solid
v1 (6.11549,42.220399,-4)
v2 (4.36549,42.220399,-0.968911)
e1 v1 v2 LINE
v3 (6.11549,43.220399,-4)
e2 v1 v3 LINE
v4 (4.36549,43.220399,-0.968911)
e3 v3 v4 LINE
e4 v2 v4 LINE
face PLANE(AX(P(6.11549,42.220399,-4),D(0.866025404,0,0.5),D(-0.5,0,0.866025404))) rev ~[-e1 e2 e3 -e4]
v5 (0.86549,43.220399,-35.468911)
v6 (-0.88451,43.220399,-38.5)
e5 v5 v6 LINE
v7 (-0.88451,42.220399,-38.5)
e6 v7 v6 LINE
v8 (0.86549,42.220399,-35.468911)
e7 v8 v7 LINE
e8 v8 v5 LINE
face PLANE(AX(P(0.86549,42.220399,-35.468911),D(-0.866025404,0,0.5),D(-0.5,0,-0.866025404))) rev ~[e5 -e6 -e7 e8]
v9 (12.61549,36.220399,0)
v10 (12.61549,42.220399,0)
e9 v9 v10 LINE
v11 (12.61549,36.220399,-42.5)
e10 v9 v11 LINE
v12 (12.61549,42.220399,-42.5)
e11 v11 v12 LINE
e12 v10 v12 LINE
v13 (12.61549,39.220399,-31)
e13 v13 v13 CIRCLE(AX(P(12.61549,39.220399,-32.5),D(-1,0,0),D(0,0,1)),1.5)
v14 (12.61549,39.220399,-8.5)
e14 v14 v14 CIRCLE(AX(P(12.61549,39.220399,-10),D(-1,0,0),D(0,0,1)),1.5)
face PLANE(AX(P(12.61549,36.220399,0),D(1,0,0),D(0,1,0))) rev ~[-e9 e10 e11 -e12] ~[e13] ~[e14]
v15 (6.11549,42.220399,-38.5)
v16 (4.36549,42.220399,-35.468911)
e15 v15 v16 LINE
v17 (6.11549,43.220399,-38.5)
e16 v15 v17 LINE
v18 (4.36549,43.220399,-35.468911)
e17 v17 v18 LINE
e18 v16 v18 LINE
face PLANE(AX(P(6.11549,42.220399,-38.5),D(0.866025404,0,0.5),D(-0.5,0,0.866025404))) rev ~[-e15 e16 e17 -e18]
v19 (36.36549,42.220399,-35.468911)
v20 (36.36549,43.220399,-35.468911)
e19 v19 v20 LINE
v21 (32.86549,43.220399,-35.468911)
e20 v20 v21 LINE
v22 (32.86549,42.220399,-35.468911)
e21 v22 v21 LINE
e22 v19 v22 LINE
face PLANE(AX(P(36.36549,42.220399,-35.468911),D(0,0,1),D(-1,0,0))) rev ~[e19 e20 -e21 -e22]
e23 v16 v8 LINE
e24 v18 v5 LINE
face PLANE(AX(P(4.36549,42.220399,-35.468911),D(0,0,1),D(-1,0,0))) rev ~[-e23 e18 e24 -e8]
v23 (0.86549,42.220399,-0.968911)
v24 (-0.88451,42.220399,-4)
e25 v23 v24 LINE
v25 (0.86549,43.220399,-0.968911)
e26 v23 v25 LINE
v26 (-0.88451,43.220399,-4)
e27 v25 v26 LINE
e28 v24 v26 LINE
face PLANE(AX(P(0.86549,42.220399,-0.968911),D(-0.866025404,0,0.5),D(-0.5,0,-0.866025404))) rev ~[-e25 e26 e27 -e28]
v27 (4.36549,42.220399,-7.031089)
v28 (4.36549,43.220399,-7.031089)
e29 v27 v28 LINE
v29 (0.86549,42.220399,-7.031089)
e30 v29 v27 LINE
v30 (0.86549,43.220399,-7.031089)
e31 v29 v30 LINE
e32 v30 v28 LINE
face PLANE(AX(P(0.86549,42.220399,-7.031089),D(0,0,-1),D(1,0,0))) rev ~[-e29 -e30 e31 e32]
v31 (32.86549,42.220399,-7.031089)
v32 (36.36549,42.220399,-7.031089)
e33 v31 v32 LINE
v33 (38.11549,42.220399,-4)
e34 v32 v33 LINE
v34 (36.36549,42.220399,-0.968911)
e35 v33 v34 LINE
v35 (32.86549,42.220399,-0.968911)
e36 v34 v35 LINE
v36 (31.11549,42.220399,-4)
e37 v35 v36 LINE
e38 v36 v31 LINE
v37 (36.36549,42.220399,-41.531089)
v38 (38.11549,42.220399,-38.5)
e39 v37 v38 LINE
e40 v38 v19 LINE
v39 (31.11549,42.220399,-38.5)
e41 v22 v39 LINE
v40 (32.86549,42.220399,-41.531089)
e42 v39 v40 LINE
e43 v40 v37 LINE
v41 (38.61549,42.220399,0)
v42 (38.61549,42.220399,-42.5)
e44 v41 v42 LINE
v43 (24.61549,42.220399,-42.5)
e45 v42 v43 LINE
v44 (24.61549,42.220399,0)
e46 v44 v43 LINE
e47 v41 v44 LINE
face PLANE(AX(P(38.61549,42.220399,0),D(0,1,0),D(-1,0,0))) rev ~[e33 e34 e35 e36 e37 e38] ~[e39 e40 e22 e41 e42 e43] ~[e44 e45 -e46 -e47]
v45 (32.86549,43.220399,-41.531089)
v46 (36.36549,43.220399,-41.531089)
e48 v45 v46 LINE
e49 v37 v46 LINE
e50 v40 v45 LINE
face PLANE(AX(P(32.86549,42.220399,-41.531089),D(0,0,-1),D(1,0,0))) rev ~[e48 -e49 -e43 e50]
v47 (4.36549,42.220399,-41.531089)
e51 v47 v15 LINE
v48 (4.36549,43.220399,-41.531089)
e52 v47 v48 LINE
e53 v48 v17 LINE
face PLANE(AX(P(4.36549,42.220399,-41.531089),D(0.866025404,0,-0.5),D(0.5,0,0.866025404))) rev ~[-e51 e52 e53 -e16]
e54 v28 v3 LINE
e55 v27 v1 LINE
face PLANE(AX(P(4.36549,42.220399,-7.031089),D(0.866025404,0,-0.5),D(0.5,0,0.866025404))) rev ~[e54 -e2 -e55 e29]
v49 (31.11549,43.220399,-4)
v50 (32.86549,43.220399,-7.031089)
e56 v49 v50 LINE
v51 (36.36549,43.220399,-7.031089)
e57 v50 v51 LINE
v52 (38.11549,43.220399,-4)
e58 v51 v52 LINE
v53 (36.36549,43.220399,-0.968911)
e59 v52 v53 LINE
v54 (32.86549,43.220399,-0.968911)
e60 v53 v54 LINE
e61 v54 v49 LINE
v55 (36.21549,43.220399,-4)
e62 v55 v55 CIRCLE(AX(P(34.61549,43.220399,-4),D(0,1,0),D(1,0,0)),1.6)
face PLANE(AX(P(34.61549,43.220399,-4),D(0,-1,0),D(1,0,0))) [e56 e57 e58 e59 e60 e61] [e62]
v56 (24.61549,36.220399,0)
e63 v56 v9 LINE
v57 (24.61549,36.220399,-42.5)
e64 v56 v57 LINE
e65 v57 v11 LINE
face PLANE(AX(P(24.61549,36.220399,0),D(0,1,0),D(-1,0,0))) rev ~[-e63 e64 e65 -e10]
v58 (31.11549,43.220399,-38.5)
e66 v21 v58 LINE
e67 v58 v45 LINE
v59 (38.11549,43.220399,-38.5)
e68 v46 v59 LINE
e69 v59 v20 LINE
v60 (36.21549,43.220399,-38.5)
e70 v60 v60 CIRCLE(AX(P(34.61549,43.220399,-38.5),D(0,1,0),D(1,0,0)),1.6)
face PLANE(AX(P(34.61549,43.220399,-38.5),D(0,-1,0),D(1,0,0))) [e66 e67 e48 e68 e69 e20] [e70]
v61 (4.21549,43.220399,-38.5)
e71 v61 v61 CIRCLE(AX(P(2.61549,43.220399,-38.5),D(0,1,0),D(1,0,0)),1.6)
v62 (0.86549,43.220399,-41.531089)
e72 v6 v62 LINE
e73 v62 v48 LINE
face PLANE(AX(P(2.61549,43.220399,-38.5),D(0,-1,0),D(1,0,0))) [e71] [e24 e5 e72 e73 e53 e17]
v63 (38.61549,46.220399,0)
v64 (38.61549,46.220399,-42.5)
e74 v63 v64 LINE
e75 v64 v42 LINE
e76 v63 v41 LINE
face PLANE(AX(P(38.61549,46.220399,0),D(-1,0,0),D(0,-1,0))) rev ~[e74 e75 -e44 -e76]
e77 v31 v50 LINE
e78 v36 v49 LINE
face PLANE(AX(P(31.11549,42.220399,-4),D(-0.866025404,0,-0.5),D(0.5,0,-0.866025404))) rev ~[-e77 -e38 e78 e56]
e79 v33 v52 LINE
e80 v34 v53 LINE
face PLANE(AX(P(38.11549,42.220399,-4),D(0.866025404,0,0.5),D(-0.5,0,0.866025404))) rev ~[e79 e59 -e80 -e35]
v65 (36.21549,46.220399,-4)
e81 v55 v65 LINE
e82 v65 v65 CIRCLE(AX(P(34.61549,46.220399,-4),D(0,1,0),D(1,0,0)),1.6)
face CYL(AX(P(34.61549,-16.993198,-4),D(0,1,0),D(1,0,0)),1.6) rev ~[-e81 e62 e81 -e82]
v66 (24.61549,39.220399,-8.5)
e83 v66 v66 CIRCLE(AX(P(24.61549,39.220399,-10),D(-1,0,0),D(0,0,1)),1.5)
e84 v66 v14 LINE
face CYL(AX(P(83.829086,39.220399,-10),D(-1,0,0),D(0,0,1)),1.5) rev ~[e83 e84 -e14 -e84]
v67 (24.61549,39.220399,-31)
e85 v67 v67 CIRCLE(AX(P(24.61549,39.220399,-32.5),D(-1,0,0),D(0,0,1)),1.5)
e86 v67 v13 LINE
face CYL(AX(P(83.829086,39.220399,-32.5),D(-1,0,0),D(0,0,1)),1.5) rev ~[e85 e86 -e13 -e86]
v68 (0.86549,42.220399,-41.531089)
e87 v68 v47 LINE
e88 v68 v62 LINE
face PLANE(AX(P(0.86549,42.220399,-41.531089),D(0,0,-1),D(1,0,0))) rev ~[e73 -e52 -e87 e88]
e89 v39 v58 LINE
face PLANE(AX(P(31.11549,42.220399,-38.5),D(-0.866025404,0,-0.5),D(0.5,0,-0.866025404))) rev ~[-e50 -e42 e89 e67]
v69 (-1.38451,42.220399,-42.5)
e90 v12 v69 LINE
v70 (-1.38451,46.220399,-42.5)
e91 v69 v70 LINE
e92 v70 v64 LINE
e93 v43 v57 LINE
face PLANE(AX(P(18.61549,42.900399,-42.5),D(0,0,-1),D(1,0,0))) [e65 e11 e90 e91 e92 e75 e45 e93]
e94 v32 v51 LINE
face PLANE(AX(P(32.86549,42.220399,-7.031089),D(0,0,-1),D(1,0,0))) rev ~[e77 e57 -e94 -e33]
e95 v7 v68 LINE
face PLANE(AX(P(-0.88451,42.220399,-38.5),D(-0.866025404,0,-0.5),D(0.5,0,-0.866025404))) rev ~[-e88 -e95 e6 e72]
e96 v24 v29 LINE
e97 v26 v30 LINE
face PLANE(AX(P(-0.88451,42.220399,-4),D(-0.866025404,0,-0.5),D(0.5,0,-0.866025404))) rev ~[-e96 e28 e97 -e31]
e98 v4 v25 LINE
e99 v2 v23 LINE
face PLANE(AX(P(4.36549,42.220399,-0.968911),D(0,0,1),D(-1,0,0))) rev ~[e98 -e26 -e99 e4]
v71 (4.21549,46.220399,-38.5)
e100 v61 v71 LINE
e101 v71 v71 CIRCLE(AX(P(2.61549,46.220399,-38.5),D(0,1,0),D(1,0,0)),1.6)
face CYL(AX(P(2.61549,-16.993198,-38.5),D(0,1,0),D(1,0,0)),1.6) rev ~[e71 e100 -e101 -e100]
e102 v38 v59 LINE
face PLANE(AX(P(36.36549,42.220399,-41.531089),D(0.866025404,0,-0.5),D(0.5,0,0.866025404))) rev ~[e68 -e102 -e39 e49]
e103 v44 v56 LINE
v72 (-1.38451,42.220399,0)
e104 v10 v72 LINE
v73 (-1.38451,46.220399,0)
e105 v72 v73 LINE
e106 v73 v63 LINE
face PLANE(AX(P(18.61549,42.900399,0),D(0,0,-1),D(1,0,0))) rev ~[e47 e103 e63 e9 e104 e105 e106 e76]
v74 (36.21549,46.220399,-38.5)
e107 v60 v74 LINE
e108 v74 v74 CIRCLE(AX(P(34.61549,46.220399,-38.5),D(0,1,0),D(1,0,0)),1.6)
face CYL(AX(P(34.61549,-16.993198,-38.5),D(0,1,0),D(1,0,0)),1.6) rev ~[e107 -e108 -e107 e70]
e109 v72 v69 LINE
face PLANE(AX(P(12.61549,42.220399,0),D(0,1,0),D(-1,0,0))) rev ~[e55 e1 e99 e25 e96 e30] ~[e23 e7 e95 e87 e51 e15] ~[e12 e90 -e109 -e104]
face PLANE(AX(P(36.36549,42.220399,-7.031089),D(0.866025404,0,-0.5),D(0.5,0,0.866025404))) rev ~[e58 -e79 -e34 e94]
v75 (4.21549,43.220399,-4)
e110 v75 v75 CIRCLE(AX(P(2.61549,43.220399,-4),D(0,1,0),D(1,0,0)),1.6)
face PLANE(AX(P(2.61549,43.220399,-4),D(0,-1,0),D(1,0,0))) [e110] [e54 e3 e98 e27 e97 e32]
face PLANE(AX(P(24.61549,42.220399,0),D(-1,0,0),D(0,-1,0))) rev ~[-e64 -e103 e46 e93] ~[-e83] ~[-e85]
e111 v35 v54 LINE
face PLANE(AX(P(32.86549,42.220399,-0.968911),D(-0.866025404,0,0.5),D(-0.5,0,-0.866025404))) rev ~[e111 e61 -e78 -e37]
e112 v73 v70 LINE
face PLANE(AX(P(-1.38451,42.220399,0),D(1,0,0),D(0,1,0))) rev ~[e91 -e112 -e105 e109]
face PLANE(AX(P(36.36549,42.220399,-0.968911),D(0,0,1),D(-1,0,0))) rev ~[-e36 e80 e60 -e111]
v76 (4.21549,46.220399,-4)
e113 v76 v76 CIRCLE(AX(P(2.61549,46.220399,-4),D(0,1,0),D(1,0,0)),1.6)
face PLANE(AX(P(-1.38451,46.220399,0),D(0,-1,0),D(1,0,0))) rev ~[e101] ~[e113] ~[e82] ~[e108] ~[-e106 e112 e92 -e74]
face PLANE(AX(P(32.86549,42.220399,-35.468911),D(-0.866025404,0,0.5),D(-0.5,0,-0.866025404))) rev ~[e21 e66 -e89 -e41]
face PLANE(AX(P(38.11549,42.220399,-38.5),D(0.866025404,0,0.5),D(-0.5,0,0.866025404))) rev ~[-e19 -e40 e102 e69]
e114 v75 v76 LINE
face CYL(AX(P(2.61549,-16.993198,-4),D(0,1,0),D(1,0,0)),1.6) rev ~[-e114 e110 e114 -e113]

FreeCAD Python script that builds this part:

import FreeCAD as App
import Part
import Sketcher

V = App.Vector
Q = App.Units.Quantity


def add_polygon(sketch, points):
    """Adds a closed chain of lines whose ends are joined by coincident constraints."""
    first, n = sketch.GeometryCount, len(points)
    for a, b in zip(points, points[1:] + points[:1]):
        sketch.addGeometry(Part.LineSegment(App.Vector(*a, 0), App.Vector(*b, 0)), False)
    for i in range(n):
        sketch.addConstraint(Sketcher.Constraint("Coincident", first + i, 2, first + (i + 1) % n, 1))

doc = App.newDocument("Part")
params = doc.addObject("Spreadsheet::Sheet", "Params")
for row, (alias, value) in enumerate([
    ("sketch1_width", "40 mm"),
    ("sketch1_width2", "14 mm"),
    ("sketch1_height", "4 mm"),
    ("sketch1_height2", "6 mm"),
    ("pad1_length", "42.5 mm"),
    ("sketch2_diameter", "3 mm"),
    ("hole_diameter", "3 mm"),
    ("sketch3_diameter", "3.2 mm"),
    ("hole2_diameter", "3.2 mm"),
    ("sketch4_width", "3.5 mm"),
    ("pocket1_length", "1 mm"),
], start=1):
    params.set(f"A{row}", alias)
    params.set(f"B{row}", "=" + value)
    params.setAlias(f"B{row}", alias)

body = doc.addObject("PartDesign::Body", "Body")

# Sketch on XY plane
sketch1 = body.newObject("Sketcher::SketchObject", "Sketch")
sketch1.AttachmentSupport = (doc.getObject("XY_Plane"), [""])
sketch1.MapMode = "FlatFace"
add_polygon(sketch1, [(-1.4, 46.2), (38.6, 46.2), (38.6, 42.2), (24.6, 42.2), (24.6, 36.2), (12.6, 36.2), (12.6, 42.2), (-1.4, 42.2)])  # lines 0-7
sketch1.addConstraint([
    Sketcher.Constraint("Horizontal", 0),
    Sketcher.Constraint("Vertical", 1),
    Sketcher.Constraint("Horizontal", 2),
    Sketcher.Constraint("Vertical", 3),
    Sketcher.Constraint("Horizontal", 4),
    Sketcher.Constraint("Vertical", 5),
    Sketcher.Constraint("Horizontal", 6),
    Sketcher.Constraint("Vertical", 7),
    Sketcher.Constraint("Horizontal", 2, 2, 5, 2),
    Sketcher.Constraint("Equal", 2, 6),
    Sketcher.Constraint("DistanceX", 0, 1, 0, 2, Q("40 mm")),
    Sketcher.Constraint("DistanceX", 2, 2, 2, 1, Q("14 mm")),
    Sketcher.Constraint("DistanceY", 1, 2, 1, 1, Q("4 mm")),
    Sketcher.Constraint("DistanceY", 3, 2, 3, 1, Q("6 mm")),
    Sketcher.Constraint("DistanceY", -1, 1, 0, 2, Q("46.220399 mm")),
    Sketcher.Constraint("DistanceX", -1, 1, 0, 2, Q("38.61549 mm")),
])
sketch1.setExpression("Constraints[18]", "Params.sketch1_width")
sketch1.setExpression("Constraints[19]", "Params.sketch1_width2")
sketch1.setExpression("Constraints[20]", "Params.sketch1_height")
sketch1.setExpression("Constraints[21]", "Params.sketch1_height2")
pad1 = body.newObject("PartDesign::Pad", "Pad")
pad1.Profile = sketch1
pad1.setExpression("Length", "Params.pad1_length")
pad1.Reversed = True

# Sketch on YZ plane
sketch2 = body.newObject("Sketcher::SketchObject", "Sketch001")
sketch2.AttachmentSupport = (doc.getObject("YZ_Plane"), [""])
sketch2.MapMode = "FlatFace"
sketch2.AttachmentOffset = App.Placement(V(0, 0, 24.61549), App.Rotation())
sketch2.addGeometry([
    Part.Circle(V(39.2, -10, 0), V(0, 0, 1), 1.5),
    Part.Circle(V(39.2, -32.5, 0), V(0, 0, 1), 1.5),
], False)
sketch2.addConstraint([
    Sketcher.Constraint("Equal", 0, 1),
    Sketcher.Constraint("Vertical", 0, 3, 1, 3),
    Sketcher.Constraint("Diameter", 0, Q("3 mm")),
    Sketcher.Constraint("DistanceY", 0, 3, -1, 1, Q("10 mm")),
    Sketcher.Constraint("DistanceY", 1, 3, -1, 1, Q("32.5 mm")),
    Sketcher.Constraint("DistanceX", -1, 1, 0, 3, Q("39.220399 mm")),
])
sketch2.setExpression("Constraints[2]", "Params.sketch2_diameter")
doc.recompute()
hole = body.newObject("PartDesign::Hole", "Hole")
hole.Profile = sketch2
hole.ThreadType = "None"
hole.setExpression("Diameter", "Params.hole_diameter")
hole.DepthType = "ThroughAll"

# Sketch on XZ plane
sketch3 = body.newObject("Sketcher::SketchObject", "Sketch002")
sketch3.AttachmentSupport = (doc.getObject("XZ_Plane"), [""])
sketch3.MapMode = "FlatFace"
sketch3.AttachmentOffset = App.Placement(V(0, 0, -42.220399), App.Rotation())
sketch3.addGeometry([
    Part.Circle(V(-3, 59.9, 0), V(0, 0, 1), 1.6),  # 0
    Part.Circle(V(34.6, -38.5, 0), V(0, 0, 1), 1.6),  # 1
    Part.Circle(V(2.6, -38.5, 0), V(0, 0, 1), 1.6),  # 2
    Part.Circle(V(2.6, -4, 0), V(0, 0, 1), 1.6),  # 3
    Part.Circle(V(34.6, -4, 0), V(0, 0, 1), 1.6),  # 4
], False)
sketch3.addConstraint([
    Sketcher.Constraint("Equal", 0, 1),
    Sketcher.Constraint("Equal", 1, 2),
    Sketcher.Constraint("Equal", 2, 3),
    Sketcher.Constraint("Equal", 3, 4),
    Sketcher.Constraint("Horizontal", 1, 3, 2, 3),
    Sketcher.Constraint("Horizontal", 3, 3, 4, 3),
    Sketcher.Constraint("Vertical", 2, 3, 3, 3),
    Sketcher.Constraint("Vertical", 1, 3, 4, 3),
    Sketcher.Constraint("Diameter", 0, Q("3.2 mm")),
    Sketcher.Constraint("DistanceX", 0, 3, -1, 1, Q("3 mm")),
    Sketcher.Constraint("DistanceY", 3, 3, -1, 1, Q("4 mm")),
    Sketcher.Constraint("DistanceX", 2, 3, 1, 3, Q("32 mm")),
    Sketcher.Constraint("DistanceY", 1, 3, -1, 1, Q("38.5 mm")),
    Sketcher.Constraint("DistanceX", -1, 1, 1, 3, Q("34.61549 mm")),
    Sketcher.Constraint("DistanceY", -1, 1, 0, 3, Q("59.946273 mm")),
])
sketch3.setExpression("Constraints[8]", "Params.sketch3_diameter")
doc.recompute()
hole2 = body.newObject("PartDesign::Hole", "Hole001")
hole2.Profile = sketch3
hole2.ThreadType = "None"
hole2.setExpression("Diameter", "Params.hole2_diameter")
hole2.DepthType = "ThroughAll"

# Sketch on XZ plane
sketch4 = body.newObject("Sketcher::SketchObject", "Sketch003")
sketch4.AttachmentSupport = (doc.getObject("XZ_Plane"), [""])
sketch4.MapMode = "FlatFace"
sketch4.AttachmentOffset = App.Placement(V(0, 0, -42.220399), App.Rotation())
add_polygon(sketch4, [(32.9, -35.5), (31.1, -38.5), (32.9, -41.5), (36.4, -41.5), (38.1, -38.5), (36.4, -35.5)])  # lines 0-5
add_polygon(sketch4, [(4.4, -35.5), (0.9, -35.5), (-0.9, -38.5), (0.9, -41.5), (4.4, -41.5), (6.1, -38.5)])  # lines 6-11
add_polygon(sketch4, [(32.9, -1), (31.1, -4), (32.9, -7), (36.4, -7), (38.1, -4), (36.4, -1)])  # lines 12-17
add_polygon(sketch4, [(4.4, -1), (0.9, -1), (-0.9, -4), (0.9, -7), (4.4, -7), (6.1, -4)])  # lines 18-23
sketch4.addConstraint([
    Sketcher.Constraint("Horizontal", 2),
    Sketcher.Constraint("Horizontal", 5),
    Sketcher.Constraint("Horizontal", 6),
    Sketcher.Constraint("Horizontal", 9),
    Sketcher.Constraint("Horizontal", 14),
    Sketcher.Constraint("Horizontal", 17),
    Sketcher.Constraint("Horizontal", 18),
    Sketcher.Constraint("Horizontal", 21),
    Sketcher.Constraint("Parallel", 0, 3),
    Sketcher.Constraint("Parallel", 1, 4),
    Sketcher.Constraint("Parallel", 3, 7),
    Sketcher.Constraint("Parallel", 4, 8),
    Sketcher.Constraint("Parallel", 7, 10),
    Sketcher.Constraint("Parallel", 8, 11),
    Sketcher.Constraint("Parallel", 10, 12),
    Sketcher.Constraint("Parallel", 11, 13),
    Sketcher.Constraint("Parallel", 12, 15),
    Sketcher.Constraint("Parallel", 13, 16),
    Sketcher.Constraint("Parallel", 15, 19),
    Sketcher.Constraint("Parallel", 16, 20),
    Sketcher.Constraint("Parallel", 19, 22),
    Sketcher.Constraint("Parallel", 20, 23),
    Sketcher.Constraint("Horizontal", 0, 2, 3, 2),
    Sketcher.Constraint("Horizontal", 5, 2, 6, 2),
    Sketcher.Constraint("Horizontal", 3, 2, 7, 2),
    Sketcher.Constraint("Horizontal", 2, 2, 8, 2),
    Sketcher.Constraint("Horizontal", 7, 2, 10, 2),
    Sketcher.Constraint("Horizontal", 12, 2, 15, 2),
    Sketcher.Constraint("Horizontal", 17, 2, 18, 2),
    Sketcher.Constraint("Horizontal", 15, 2, 19, 2),
    Sketcher.Constraint("Horizontal", 14, 2, 20, 2),
    Sketcher.Constraint("Horizontal", 19, 2, 22, 2),
    Sketcher.Constraint("Vertical", 2, 2, 4, 2),
    Sketcher.Constraint("Vertical", 1, 2, 5, 2),
    Sketcher.Constraint("Vertical", 0, 2, 12, 2),
    Sketcher.Constraint("Vertical", 5, 2, 13, 2),
    Sketcher.Constraint("Vertical", 4, 2, 14, 2),
    Sketcher.Constraint("Vertical", 14, 2, 16, 2),
    Sketcher.Constraint("Vertical", 8, 2, 18, 2),
    Sketcher.Constraint("Vertical", 11, 2, 21, 2),
    Sketcher.Constraint("Equal", 5, 6),
    Sketcher.Constraint("Angle", 0, Q("-120 deg")),
    Sketcher.Constraint("DistanceX", 2, 1, 2, 2, Q("3.5 mm")),
    Sketcher.Constraint("DistanceY", 12, 2, -1, 1, Q("4 mm")),
    Sketcher.Constraint("DistanceX", 0, 2, 3, 2, Q("7 mm")),
    Sketcher.Constraint("DistanceX", 6, 2, 5, 2, Q("32 mm")),
    Sketcher.Constraint("DistanceY", 0, 2, -1, 1, Q("38.5 mm")),
    Sketcher.Constraint("DistanceX", -1, 1, 0, 2, Q("31.11549 mm")),
])
sketch4.setExpression("Constraints[66]", "Params.sketch4_width")
pocket1 = body.newObject("PartDesign::Pocket", "Pocket")
pocket1.Profile = sketch4
pocket1.setExpression("Length", "Params.pocket1_length")

doc.recompute()
